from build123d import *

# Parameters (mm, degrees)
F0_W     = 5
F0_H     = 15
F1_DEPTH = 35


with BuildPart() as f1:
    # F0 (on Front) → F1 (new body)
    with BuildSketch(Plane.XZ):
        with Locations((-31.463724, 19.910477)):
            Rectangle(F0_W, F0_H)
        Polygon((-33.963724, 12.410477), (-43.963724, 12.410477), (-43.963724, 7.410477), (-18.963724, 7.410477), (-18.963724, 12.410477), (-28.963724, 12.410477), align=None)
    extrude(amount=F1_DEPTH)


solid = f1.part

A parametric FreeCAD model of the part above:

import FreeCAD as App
import Part
import Sketcher
from FreeCAD import Vector


def add_polygon(sketch, points):
    """Adds a closed chain of lines whose ends are joined by coincident constraints."""
    first, n = sketch.GeometryCount, len(points)
    for a, b in zip(points, points[1:] + points[:1]):
        sketch.addGeometry(Part.LineSegment(App.Vector(*a, 0), App.Vector(*b, 0)), False)
    for i in range(n):
        sketch.addConstraint(Sketcher.Constraint("Coincident", first + i, 2, first + (i + 1) % n, 1))

doc = App.newDocument("Part")
params = doc.addObject("Spreadsheet::Sheet", "Params")
for row, (alias, value) in enumerate([
    ("sketch1_width", "10 mm"),
    ("sketch1_width2", "25 mm"),
    ("sketch1_height", "15 mm"),
    ("pad1_length", "35 mm"),
], start=1):
    params.set(f"A{row}", alias)
    params.set(f"B{row}", "=" + value)
    params.setAlias(f"B{row}", alias)

body = doc.addObject("PartDesign::Body", "Body")

# Sketch on XZ plane
sketch1 = body.newObject("Sketcher::SketchObject", "Sketch")
sketch1.AttachmentSupport = (doc.getObject("XZ_Plane"), [""])
sketch1.MapMode = "FlatFace"
add_polygon(sketch1, [(-34, 27), (-34, 12), (-44, 12), (-44, 7), (-19, 7), (-19, 12), (-29, 12), (-29, 27)])  # lines 0-7
sketch1.addConstraint(Sketcher.Constraint("Vertical", 0))
sketch1.addConstraint(Sketcher.Constraint("Horizontal", 1))
sketch1.addConstraint(Sketcher.Constraint("Vertical", 2))
sketch1.addConstraint(Sketcher.Constraint("Horizontal", 3))
sketch1.addConstraint(Sketcher.Constraint("Vertical", 4))
sketch1.addConstraint(Sketcher.Constraint("Horizontal", 5))
sketch1.addConstraint(Sketcher.Constraint("Vertical", 6))
sketch1.addConstraint(Sketcher.Constraint("Horizontal", 7))
sketch1.addConstraint(Sketcher.Constraint("Horizontal", 1, 2, 4, 2))
sketch1.addConstraint(Sketcher.Constraint("Equal", 1, 5))
sketch1.addConstraint(Sketcher.Constraint("Equal", 7, 2))
sketch1.addConstraint(Sketcher.Constraint("DistanceX", 1, 2, 1, 1, 10.0))
sketch1.addConstraint(Sketcher.Constraint("DistanceX", 3, 1, 3, 2, 25.0))
sketch1.addConstraint(Sketcher.Constraint("DistanceY", 0, 2, 0, 1, 15.0))
sketch1.addConstraint(Sketcher.Constraint("DistanceX", 0, 2, -1, 1, 33.963724))
sketch1.addConstraint(Sketcher.Constraint("DistanceY", -1, 1, 0, 2, 12.410477))
sketch1.setExpression("Constraints[19]", "Params.sketch1_width")
sketch1.setExpression("Constraints[20]", "Params.sketch1_width2")
sketch1.setExpression("Constraints[21]", "Params.sketch1_height")
pad1 = body.newObject("PartDesign::Pad", "Pad")
pad1.Profile = sketch1
pad1.setExpression("Length", "Params.pad1_length")

doc.recompute()
